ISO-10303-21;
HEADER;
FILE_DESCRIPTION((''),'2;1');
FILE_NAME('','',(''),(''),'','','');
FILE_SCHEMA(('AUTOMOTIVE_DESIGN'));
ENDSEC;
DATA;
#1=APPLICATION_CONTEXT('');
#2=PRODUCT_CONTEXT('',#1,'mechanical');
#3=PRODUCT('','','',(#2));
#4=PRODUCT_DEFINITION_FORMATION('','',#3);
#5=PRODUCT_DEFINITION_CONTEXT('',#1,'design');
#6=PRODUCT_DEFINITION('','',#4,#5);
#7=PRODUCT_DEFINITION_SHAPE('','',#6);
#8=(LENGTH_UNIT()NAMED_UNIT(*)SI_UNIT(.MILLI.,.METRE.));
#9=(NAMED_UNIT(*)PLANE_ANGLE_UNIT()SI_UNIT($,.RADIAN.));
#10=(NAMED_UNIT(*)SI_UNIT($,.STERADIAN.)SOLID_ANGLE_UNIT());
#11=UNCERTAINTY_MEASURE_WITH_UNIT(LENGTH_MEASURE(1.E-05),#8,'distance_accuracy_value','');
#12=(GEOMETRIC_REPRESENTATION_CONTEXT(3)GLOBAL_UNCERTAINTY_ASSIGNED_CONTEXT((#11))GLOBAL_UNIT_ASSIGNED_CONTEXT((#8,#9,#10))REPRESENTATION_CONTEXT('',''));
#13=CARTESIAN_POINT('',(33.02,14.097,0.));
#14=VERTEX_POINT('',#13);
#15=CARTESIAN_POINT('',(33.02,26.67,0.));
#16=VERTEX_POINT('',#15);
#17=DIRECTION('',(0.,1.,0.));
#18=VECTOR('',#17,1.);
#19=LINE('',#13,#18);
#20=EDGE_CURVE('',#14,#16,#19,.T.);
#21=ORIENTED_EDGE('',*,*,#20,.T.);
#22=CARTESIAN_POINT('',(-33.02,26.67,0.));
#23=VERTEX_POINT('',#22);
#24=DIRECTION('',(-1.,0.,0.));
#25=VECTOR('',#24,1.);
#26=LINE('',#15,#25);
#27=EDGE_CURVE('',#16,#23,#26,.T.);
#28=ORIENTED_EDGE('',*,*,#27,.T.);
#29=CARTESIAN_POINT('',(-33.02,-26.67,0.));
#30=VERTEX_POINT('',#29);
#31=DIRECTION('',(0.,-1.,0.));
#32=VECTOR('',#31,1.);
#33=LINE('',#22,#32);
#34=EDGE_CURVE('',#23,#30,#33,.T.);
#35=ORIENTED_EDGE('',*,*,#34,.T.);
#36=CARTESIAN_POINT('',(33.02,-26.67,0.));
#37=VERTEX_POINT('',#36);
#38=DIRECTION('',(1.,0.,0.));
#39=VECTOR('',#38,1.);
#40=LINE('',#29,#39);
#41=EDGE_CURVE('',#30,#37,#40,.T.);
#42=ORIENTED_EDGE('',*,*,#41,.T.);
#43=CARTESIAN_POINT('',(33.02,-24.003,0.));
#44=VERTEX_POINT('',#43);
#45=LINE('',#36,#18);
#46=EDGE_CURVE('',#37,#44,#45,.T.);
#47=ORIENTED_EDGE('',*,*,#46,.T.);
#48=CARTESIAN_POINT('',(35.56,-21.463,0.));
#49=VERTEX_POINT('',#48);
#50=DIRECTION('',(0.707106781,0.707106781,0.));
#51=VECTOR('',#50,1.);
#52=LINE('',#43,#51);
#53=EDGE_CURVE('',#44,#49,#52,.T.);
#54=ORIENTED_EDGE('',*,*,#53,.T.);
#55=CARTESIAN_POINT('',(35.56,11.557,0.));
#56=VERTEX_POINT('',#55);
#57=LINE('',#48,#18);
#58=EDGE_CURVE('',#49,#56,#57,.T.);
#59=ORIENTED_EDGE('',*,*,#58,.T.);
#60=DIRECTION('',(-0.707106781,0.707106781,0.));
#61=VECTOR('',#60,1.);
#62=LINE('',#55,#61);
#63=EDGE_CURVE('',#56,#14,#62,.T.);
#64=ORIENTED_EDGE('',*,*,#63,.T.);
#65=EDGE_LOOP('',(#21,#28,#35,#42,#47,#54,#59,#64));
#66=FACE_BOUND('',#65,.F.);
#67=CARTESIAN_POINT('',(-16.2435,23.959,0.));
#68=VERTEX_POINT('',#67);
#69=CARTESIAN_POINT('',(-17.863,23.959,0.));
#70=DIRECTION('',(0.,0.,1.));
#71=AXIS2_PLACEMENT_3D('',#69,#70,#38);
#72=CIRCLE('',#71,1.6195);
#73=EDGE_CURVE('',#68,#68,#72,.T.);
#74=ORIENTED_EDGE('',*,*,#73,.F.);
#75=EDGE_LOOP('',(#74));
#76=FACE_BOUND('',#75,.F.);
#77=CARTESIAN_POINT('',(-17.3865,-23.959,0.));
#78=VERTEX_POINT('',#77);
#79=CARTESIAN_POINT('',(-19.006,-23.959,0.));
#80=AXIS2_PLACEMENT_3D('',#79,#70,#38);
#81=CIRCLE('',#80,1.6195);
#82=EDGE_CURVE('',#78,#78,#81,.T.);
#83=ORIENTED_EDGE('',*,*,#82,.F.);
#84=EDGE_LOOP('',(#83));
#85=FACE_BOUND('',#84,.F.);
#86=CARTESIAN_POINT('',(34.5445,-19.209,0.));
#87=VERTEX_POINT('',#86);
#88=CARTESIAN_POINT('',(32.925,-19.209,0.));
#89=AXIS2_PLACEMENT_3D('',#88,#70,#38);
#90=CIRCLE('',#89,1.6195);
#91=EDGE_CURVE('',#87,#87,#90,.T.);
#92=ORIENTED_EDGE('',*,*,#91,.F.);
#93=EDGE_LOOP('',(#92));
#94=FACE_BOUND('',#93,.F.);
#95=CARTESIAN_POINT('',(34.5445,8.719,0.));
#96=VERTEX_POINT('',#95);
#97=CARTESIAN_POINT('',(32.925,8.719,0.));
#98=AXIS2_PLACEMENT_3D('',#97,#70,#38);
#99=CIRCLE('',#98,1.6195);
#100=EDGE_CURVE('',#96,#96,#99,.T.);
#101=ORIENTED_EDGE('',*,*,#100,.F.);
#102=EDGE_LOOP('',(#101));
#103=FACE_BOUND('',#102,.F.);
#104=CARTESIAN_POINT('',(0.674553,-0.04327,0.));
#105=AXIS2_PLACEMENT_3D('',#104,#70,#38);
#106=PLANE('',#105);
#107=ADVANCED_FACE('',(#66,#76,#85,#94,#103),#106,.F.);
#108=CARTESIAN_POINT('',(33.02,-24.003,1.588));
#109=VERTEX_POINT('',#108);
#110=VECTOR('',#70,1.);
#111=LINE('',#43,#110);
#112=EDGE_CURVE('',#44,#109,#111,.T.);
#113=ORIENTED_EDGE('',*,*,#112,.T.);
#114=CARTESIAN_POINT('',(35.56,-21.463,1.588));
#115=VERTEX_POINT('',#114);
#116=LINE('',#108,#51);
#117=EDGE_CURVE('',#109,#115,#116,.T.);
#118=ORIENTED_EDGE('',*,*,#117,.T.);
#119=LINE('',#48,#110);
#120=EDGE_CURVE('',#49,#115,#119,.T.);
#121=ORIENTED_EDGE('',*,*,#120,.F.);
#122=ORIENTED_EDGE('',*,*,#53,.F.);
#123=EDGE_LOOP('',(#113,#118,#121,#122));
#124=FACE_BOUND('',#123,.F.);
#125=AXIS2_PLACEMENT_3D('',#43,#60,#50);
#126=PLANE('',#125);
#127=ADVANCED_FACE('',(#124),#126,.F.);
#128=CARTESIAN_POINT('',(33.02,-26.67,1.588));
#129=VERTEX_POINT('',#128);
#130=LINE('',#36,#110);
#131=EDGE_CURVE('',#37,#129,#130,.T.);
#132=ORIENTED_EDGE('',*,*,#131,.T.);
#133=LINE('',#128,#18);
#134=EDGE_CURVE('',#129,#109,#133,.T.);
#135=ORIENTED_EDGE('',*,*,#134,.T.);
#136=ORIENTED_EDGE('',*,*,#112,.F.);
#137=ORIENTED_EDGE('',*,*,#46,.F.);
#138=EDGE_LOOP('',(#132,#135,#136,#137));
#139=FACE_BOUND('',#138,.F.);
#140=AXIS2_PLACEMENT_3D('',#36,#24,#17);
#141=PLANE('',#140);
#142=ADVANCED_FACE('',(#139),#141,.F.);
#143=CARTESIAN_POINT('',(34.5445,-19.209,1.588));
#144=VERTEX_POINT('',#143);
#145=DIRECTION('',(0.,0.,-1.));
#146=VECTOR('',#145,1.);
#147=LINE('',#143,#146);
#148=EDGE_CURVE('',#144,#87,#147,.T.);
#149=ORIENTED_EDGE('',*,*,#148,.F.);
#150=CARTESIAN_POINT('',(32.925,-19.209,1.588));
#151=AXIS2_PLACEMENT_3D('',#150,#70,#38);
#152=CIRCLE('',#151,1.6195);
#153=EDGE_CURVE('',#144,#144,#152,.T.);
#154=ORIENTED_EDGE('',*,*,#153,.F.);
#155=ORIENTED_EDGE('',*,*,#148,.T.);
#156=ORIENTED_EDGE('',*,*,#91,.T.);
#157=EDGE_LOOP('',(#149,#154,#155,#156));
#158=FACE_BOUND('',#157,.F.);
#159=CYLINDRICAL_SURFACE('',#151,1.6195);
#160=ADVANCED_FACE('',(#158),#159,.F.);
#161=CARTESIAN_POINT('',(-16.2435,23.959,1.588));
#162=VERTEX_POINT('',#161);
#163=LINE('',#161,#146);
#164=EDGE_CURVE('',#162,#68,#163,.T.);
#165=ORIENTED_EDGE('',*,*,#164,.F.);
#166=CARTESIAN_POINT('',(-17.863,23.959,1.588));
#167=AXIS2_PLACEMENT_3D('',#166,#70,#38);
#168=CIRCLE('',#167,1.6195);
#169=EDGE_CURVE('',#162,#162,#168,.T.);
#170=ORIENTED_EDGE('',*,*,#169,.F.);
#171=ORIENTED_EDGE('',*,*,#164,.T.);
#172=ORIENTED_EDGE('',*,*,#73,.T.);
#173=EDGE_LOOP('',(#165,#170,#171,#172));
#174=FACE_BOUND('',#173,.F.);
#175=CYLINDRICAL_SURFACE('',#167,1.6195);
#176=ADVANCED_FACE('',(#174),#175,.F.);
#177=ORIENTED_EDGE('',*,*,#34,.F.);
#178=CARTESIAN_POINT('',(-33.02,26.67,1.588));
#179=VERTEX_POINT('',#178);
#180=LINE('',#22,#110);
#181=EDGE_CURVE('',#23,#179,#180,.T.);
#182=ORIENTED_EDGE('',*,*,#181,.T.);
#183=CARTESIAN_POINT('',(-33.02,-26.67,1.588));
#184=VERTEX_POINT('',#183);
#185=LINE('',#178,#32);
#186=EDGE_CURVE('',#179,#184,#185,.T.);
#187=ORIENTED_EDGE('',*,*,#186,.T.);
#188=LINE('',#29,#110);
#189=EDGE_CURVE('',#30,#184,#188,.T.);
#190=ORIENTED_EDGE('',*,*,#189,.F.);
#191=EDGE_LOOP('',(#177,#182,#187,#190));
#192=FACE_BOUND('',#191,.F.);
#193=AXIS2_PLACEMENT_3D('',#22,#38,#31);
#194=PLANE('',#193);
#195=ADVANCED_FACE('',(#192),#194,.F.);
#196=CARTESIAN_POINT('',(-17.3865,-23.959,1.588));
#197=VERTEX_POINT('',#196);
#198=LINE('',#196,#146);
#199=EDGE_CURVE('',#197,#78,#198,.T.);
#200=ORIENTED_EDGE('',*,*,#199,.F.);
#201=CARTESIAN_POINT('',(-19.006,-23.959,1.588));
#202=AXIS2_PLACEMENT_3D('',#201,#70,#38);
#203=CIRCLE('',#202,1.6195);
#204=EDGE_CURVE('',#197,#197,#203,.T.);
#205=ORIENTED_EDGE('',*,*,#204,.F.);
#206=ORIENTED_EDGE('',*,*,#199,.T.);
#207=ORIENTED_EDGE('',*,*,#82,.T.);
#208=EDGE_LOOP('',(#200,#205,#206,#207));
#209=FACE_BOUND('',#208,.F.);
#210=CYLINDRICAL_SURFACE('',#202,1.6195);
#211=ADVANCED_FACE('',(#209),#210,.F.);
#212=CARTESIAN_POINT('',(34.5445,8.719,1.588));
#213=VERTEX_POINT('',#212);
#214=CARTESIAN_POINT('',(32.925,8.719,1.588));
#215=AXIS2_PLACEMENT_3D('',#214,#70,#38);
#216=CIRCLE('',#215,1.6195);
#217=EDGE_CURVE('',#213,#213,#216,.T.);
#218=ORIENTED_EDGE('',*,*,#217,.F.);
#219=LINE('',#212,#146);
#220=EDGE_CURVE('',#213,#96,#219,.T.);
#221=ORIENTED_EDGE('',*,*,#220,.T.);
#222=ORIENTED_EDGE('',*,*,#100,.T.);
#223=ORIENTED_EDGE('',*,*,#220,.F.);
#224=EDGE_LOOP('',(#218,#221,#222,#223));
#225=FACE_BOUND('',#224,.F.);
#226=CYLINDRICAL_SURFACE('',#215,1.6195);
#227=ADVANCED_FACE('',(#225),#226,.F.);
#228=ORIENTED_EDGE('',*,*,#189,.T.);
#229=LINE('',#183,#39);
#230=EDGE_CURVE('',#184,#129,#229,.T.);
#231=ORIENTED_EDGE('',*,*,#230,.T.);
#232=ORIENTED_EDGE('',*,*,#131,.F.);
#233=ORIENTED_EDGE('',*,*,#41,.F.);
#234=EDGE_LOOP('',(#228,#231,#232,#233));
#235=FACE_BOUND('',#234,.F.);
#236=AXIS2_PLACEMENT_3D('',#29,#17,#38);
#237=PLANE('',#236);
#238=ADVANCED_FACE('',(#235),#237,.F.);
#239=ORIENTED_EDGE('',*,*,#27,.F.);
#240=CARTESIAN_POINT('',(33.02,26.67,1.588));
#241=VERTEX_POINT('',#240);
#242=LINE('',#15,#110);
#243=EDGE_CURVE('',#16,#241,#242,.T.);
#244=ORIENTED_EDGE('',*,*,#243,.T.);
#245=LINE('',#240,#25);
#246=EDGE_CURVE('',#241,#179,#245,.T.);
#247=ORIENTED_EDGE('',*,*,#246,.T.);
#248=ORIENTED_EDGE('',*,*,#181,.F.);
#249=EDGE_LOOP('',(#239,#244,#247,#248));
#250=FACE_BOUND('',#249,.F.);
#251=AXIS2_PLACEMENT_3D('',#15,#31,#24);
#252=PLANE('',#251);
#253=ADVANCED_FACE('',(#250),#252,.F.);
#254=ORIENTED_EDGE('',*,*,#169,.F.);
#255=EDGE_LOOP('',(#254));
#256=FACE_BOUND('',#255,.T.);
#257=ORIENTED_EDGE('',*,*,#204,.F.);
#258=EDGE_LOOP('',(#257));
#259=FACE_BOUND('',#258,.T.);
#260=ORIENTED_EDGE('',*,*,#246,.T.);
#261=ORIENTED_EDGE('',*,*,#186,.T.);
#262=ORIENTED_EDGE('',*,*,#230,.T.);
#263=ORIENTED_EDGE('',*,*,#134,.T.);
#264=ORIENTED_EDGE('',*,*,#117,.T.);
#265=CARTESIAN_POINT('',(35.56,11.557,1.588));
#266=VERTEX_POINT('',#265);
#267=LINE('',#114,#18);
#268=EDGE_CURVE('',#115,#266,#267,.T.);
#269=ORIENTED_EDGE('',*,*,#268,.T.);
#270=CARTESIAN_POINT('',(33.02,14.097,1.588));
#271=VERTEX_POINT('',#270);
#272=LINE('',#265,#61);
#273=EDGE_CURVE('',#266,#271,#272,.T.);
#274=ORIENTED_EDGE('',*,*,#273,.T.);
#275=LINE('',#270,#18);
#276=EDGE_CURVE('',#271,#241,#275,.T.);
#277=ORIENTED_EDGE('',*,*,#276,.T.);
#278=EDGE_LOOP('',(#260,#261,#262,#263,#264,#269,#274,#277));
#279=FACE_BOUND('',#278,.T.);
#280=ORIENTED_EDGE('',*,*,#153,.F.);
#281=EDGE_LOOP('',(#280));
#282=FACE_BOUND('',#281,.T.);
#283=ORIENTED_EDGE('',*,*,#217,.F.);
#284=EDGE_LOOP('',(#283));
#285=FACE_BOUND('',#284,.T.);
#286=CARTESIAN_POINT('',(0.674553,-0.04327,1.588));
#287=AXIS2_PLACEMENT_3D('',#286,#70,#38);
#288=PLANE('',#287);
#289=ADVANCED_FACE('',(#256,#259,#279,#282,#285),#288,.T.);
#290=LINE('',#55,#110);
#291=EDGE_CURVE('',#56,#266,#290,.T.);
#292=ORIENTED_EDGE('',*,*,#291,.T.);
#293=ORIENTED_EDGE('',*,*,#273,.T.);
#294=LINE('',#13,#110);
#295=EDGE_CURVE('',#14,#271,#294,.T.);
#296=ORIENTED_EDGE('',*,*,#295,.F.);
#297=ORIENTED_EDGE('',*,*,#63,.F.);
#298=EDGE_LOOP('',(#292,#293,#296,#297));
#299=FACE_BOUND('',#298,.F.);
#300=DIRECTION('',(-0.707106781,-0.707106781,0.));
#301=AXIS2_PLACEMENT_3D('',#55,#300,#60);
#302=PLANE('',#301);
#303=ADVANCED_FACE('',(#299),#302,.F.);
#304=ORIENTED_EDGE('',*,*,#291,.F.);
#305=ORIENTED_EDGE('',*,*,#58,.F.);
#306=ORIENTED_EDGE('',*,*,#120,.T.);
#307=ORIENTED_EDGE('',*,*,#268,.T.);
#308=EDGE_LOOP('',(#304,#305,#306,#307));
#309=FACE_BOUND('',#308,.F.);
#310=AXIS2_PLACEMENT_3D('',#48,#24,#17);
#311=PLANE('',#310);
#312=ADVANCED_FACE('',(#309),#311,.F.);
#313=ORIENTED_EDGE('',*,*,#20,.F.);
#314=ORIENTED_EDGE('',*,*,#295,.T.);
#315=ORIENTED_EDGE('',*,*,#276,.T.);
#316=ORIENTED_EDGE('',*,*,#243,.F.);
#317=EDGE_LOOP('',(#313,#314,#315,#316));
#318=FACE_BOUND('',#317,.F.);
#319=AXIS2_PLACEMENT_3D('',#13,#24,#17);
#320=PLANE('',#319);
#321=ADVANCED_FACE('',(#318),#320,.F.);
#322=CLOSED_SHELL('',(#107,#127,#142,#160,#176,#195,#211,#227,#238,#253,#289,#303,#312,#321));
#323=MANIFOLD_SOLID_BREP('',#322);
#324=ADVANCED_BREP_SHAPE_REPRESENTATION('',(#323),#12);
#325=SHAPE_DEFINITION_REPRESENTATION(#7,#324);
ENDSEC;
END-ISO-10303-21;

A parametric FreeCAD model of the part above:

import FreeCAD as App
import Part
import Sketcher
Q = App.Units.Quantity

doc = App.newDocument("Part")
params = doc.addObject("Spreadsheet::Sheet", "Params")
for row, (alias, value) in enumerate([
    ("sketch1_width", "2.6 in"),
    ("sketch1_height", "2.1 in"),
    ("sketch1_height2", "1.3 in"),
    ("sketch1_height3", "0.105 in"),
    ("pad1_length", "1.588 mm"),
], start=1):
    params.set(f"A{row}", alias)
    params.set(f"B{row}", "=" + value)
    params.setAlias(f"B{row}", alias)

body = doc.addObject("PartDesign::Body", "Body")

sketch1 = doc.addObject("Sketcher::SketchObject", "Sketch")
body.addObject(sketch1)
sketch1.AttachmentSupport = (doc.XY_Plane, [""])
sketch1.MapMode = "FlatFace"
sketch1.addGeometry([
    Part.LineSegment(App.Vector(33.02, 26.67, 0), App.Vector(-33.02, 26.67, 0)),
    Part.LineSegment(App.Vector(-33.02, 26.67, 0), App.Vector(-33.02, -26.67, 0)),
    Part.LineSegment(App.Vector(-33.02, -26.67, 0), App.Vector(33.02, -26.67, 0)),
    Part.LineSegment(App.Vector(33.02, -26.67, 0), App.Vector(33.02, -24.003, 0)),
    Part.LineSegment(App.Vector(33.02, -24.003, 0), App.Vector(35.56, -21.463, 0)),
    Part.LineSegment(App.Vector(35.56, -21.463, 0), App.Vector(35.56, 11.557, 0)),
    Part.LineSegment(App.Vector(35.56, 11.557, 0), App.Vector(33.02, 14.097, 0)),
    Part.LineSegment(App.Vector(33.02, 14.097, 0), App.Vector(33.02, 26.67, 0)),
], False)
sketch1.addConstraint([
    Sketcher.Constraint("Coincident", 0, 2, 1, 1),
    Sketcher.Constraint("Coincident", 1, 2, 2, 1),
    Sketcher.Constraint("Coincident", 2, 2, 3, 1),
    Sketcher.Constraint("Coincident", 3, 2, 4, 1),
    Sketcher.Constraint("Coincident", 4, 2, 5, 1),
    Sketcher.Constraint("Coincident", 5, 2, 6, 1),
    Sketcher.Constraint("Coincident", 6, 2, 7, 1),
    Sketcher.Constraint("Coincident", 7, 2, 0, 1),
    Sketcher.Constraint("Horizontal", 0),
    Sketcher.Constraint("Vertical", 1),
    Sketcher.Constraint("Horizontal", 2),
    Sketcher.Constraint("Vertical", 3),
    Sketcher.Constraint("Vertical", 5),
    Sketcher.Constraint("Vertical", 7),
    Sketcher.Constraint("Symmetric", 0, 2, 2, 2, -1, 1),
    Sketcher.Constraint("Perpendicular", 4, 6),
    Sketcher.Constraint("Vertical", 3, 2, 6, 2),
    Sketcher.Constraint("Equal", 4, 6),
    Sketcher.Constraint("DistanceX", 0, 2, 0, 1, Q("2.6 in")),
    Sketcher.Constraint("DistanceY", 1, 2, 1, 1, Q("2.1 in")),
    Sketcher.Constraint("DistanceY", 5, 1, 5, 2, Q("1.3 in")),
    Sketcher.Constraint("DistanceX", -1, 1, 4, 2, Q("1.4 in")),
    Sketcher.Constraint("DistanceY", 3, 1, 3, 2, Q("0.105 in")),
])
sketch1.setExpression("Constraints[18]", "Params.sketch1_width")
sketch1.setExpression("Constraints[19]", "Params.sketch1_height")
sketch1.setExpression("Constraints[20]", "Params.sketch1_height2")
sketch1.setExpression("Constraints[22]", "Params.sketch1_height3")
pad1 = doc.addObject("PartDesign::Pad", "Pad")
body.addObject(pad1)
pad1.Profile = sketch1
pad1.setExpression("Length", "Params.pad1_length")

sketch2 = doc.addObject("Sketcher::SketchObject", "Sketch001")
body.addObject(sketch2)
sketch2.AttachmentSupport = (doc.XY_Plane, [""])
sketch2.MapMode = "FlatFace"
sketch2.AttachmentOffset = App.Placement(App.Vector(0, 0, 1.588), App.Rotation())
sketch2.addGeometry([
    Part.Circle(App.Vector(-17.863, 23.959, 0), App.Vector(0, 0, 1), 1.6195),
    Part.Circle(App.Vector(-19.006, -23.959, 0), App.Vector(0, 0, 1), 1.6195),
    Part.Circle(App.Vector(32.925, 8.719, 0), App.Vector(0, 0, 1), 1.6195),
    Part.Circle(App.Vector(32.925, -19.209, 0), App.Vector(0, 0, 1), 1.6195),
], False)
sketch2.addConstraint([
    Sketcher.Constraint("Equal", 0, 1),
    Sketcher.Constraint("Equal", 1, 2),
    Sketcher.Constraint("Equal", 2, 3),
    Sketcher.Constraint("Vertical", 2, 3, 3, 3),
    Sketcher.Constraint("DistanceY", 2, 3, 0, 3, Q("0.6 in")),
    Sketcher.Constraint("Diameter", 0, 3.239),
    Sketcher.Constraint("DistanceX", 1, 3, 0, 3, Q("0.045 in")),
    Sketcher.Constraint("DistanceX", 0, 3, -1, 1, 17.863),
    Sketcher.Constraint("DistanceY", -1, 1, 0, 3, 23.959),
    Sketcher.Constraint("DistanceY", 1, 3, -1, 1, 23.959),
    Sketcher.Constraint("DistanceX", -1, 1, 2, 3, 32.925),
    Sketcher.Constraint("DistanceY", 3, 3, -1, 1, 19.209),
])
pocket1 = doc.addObject("PartDesign::Pocket", "Pocket")
body.addObject(pocket1)
pocket1.Profile = sketch2
pocket1.Type = "ThroughAll"

doc.recompute()
